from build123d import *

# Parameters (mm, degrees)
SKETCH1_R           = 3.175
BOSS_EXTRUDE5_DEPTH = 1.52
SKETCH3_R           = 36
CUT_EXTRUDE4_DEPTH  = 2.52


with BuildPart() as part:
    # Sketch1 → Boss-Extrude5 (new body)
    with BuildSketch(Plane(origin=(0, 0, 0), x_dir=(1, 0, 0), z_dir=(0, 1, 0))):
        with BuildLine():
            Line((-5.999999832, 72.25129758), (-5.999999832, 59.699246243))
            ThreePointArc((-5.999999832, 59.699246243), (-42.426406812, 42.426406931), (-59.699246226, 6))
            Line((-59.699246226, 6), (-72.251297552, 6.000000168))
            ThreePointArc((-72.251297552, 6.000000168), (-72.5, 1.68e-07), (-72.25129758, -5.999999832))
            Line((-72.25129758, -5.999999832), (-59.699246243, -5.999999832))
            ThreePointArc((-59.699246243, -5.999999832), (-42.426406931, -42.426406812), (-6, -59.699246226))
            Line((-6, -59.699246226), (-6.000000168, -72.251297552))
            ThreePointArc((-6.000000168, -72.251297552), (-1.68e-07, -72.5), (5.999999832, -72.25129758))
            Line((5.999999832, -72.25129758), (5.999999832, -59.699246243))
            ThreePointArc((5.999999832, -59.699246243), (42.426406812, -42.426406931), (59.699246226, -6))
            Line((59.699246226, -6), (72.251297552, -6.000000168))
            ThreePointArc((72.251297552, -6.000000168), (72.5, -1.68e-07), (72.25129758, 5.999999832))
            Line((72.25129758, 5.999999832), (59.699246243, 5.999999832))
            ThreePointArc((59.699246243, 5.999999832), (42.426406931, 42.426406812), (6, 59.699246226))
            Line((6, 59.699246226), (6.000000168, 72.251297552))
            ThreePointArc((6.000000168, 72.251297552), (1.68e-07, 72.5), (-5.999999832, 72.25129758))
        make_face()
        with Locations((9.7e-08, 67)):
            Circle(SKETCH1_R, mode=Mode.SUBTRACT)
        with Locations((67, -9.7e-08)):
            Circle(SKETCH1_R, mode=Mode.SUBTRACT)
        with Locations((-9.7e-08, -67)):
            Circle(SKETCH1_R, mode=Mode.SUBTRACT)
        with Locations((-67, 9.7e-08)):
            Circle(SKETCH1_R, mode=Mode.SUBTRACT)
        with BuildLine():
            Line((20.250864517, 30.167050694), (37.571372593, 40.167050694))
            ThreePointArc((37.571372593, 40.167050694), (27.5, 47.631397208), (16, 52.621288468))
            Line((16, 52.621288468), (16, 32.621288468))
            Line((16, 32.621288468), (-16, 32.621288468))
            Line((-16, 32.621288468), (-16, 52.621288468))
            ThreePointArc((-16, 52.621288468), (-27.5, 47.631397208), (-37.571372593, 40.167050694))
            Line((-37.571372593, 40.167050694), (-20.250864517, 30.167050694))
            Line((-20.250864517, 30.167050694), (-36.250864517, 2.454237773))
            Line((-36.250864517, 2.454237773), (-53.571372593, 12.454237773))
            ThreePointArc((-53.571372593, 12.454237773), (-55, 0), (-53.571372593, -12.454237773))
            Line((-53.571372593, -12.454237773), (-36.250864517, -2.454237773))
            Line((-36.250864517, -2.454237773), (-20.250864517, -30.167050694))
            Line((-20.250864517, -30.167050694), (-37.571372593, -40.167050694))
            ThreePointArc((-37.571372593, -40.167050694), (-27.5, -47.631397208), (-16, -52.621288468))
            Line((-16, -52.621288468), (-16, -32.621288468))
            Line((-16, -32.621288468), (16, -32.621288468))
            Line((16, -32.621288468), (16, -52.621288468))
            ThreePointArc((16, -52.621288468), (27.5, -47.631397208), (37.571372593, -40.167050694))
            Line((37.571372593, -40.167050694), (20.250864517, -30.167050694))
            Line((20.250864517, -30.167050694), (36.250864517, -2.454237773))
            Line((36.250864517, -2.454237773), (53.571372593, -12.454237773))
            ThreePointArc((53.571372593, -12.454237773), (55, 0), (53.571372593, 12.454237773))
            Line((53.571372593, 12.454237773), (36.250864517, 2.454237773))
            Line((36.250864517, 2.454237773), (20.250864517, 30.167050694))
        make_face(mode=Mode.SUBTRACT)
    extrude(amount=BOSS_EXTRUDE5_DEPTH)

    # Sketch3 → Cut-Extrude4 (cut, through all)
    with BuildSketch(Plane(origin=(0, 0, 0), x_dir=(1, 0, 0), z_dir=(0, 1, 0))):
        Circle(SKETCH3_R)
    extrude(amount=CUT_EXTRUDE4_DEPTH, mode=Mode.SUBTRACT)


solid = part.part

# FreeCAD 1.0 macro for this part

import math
import FreeCAD as App
import Part
import Sketcher

V = App.Vector
Q = App.Units.Quantity

doc = App.newDocument("Part")
body = doc.addObject("PartDesign::Body", "Body")

sketch1 = doc.addObject("Sketcher::SketchObject", "Sketch")
body.addObject(sketch1)
sketch1.AttachmentSupport = (doc.XZ_Plane, [""])
sketch1.MapMode = "FlatFace"
sketch1.addGeometry([
    Part.LineSegment(V(-6, -72.3, 0), V(-6, -59.7, 0)),
    Part.ArcOfCircle(Part.Circle(V(0, 0, 0), V(0, 0, 1), 60), math.radians(-174), math.radians(-96)),
    Part.LineSegment(V(-59.7, -6, 0), V(-72.3, -6, 0)),
    Part.ArcOfCircle(Part.Circle(V(0, 0, 0), V(0, 0, 1), 72.5), math.radians(175.25), math.radians(184.75)),
    Part.LineSegment(V(-72.3, 6, 0), V(-59.7, 6, 0)),
    Part.ArcOfCircle(Part.Circle(V(0, 0, 0), V(0, 0, 1), 60), math.radians(96), math.radians(174)),
    Part.LineSegment(V(-6, 59.7, 0), V(-6, 72.3, 0)),
    Part.ArcOfCircle(Part.Circle(V(0, 0, 0), V(0, 0, 1), 72.5), math.radians(85.25), math.radians(94.75)),
    Part.LineSegment(V(6, 72.3, 0), V(6, 59.7, 0)),
    Part.ArcOfCircle(Part.Circle(V(0, 0, 0), V(0, 0, 1), 60), math.radians(6), math.radians(84)),
    Part.LineSegment(V(59.7, 6, 0), V(72.3, 6, 0)),
    Part.ArcOfCircle(Part.Circle(V(0, 0, 0), V(0, 0, 1), 72.5), math.radians(-4.75), math.radians(4.75)),
    Part.LineSegment(V(72.3, -6, 0), V(59.7, -6, 0)),
    Part.ArcOfCircle(Part.Circle(V(0, 0, 0), V(0, 0, 1), 60), math.radians(-84), math.radians(-6)),
    Part.LineSegment(V(6, -59.7, 0), V(6, -72.3, 0)),
    Part.ArcOfCircle(Part.Circle(V(0, 0, 0), V(0, 0, 1), 72.5), math.radians(-94.75), math.radians(-85.25)),
    Part.Circle(V(0, 67, 0), V(0, 0, 1), 3.2),
    Part.Circle(V(67, 0, 0), V(0, 0, 1), 3.2),
    Part.Circle(V(-67, 0, 0), V(0, 0, 1), 3.2),
    Part.LineSegment(V(37.6, -40.2, 0), V(20.3, -30.2, 0)),
    Part.LineSegment(V(20.3, -30.2, 0), V(36.3, -2.5, 0)),
    Part.LineSegment(V(36.3, -2.5, 0), V(53.6, -12.5, 0)),
    Part.ArcOfCircle(Part.Circle(V(0, 0, 0), V(0, 0, 1), 55), math.radians(-13), math.radians(13)),
    Part.LineSegment(V(53.6, 12.5, 0), V(36.3, 2.5, 0)),
    Part.LineSegment(V(36.3, 2.5, 0), V(20.3, 30.2, 0)),
    Part.LineSegment(V(20.3, 30.2, 0), V(37.6, 40.2, 0)),
    Part.ArcOfCircle(Part.Circle(V(0, 0, 0), V(0, 0, 1), 55), math.radians(47), math.radians(73)),
    Part.LineSegment(V(16, 52.6, 0), V(16, 32.6, 0)),
    Part.LineSegment(V(16, 32.6, 0), V(-16, 32.6, 0)),
    Part.LineSegment(V(-16, 32.6, 0), V(-16, 52.6, 0)),
    Part.ArcOfCircle(Part.Circle(V(0, 0, 0), V(0, 0, 1), 55), math.radians(107), math.radians(133)),
    Part.LineSegment(V(-37.6, 40.2, 0), V(-20.3, 30.2, 0)),
    Part.LineSegment(V(-20.3, 30.2, 0), V(-36.3, 2.5, 0)),
    Part.LineSegment(V(-36.3, 2.5, 0), V(-53.6, 12.5, 0)),
    Part.ArcOfCircle(Part.Circle(V(0, 0, 0), V(0, 0, 1), 55), math.radians(167), math.radians(193)),
    Part.LineSegment(V(-53.6, -12.5, 0), V(-36.3, -2.5, 0)),
    Part.LineSegment(V(-36.3, -2.5, 0), V(-20.3, -30.2, 0)),
    Part.LineSegment(V(-20.3, -30.2, 0), V(-37.6, -40.2, 0)),
    Part.ArcOfCircle(Part.Circle(V(0, 0, 0), V(0, 0, 1), 55), math.radians(-133), math.radians(-107)),
    Part.LineSegment(V(-16, -52.6, 0), V(-16, -32.6, 0)),
    Part.LineSegment(V(-16, -32.6, 0), V(16, -32.6, 0)),
    Part.LineSegment(V(16, -32.6, 0), V(16, -52.6, 0)),
    Part.ArcOfCircle(Part.Circle(V(0, 0, 0), V(0, 0, 1), 55), math.radians(-73), math.radians(-47)),
    Part.Circle(V(0, -67, 0), V(0, 0, 1), 3.2),
], False)
sketch1.addConstraint([
    Sketcher.Constraint("Coincident", 0, 2, 1, 2),
    Sketcher.Constraint("Coincident", 1, 1, 2, 1),
    Sketcher.Constraint("Coincident", 2, 2, 3, 2),
    Sketcher.Constraint("Coincident", 3, 1, 4, 1),
    Sketcher.Constraint("Coincident", 4, 2, 5, 2),
    Sketcher.Constraint("Coincident", 5, 1, 6, 1),
    Sketcher.Constraint("Coincident", 6, 2, 7, 2),
    Sketcher.Constraint("Coincident", 7, 1, 8, 1),
    Sketcher.Constraint("Coincident", 8, 2, 9, 2),
    Sketcher.Constraint("Coincident", 9, 1, 10, 1),
    Sketcher.Constraint("Coincident", 10, 2, 11, 2),
    Sketcher.Constraint("Coincident", 11, 1, 12, 1),
    Sketcher.Constraint("Coincident", 12, 2, 13, 2),
    Sketcher.Constraint("Coincident", 13, 1, 14, 1),
    Sketcher.Constraint("Coincident", 14, 2, 15, 2),
    Sketcher.Constraint("Coincident", 15, 1, 0, 1),
    Sketcher.Constraint("Coincident", 19, 2, 20, 1),
    Sketcher.Constraint("Coincident", 20, 2, 21, 1),
    Sketcher.Constraint("Coincident", 21, 2, 22, 1),
    Sketcher.Constraint("Coincident", 22, 2, 23, 1),
    Sketcher.Constraint("Coincident", 23, 2, 24, 1),
    Sketcher.Constraint("Coincident", 24, 2, 25, 1),
    Sketcher.Constraint("Coincident", 25, 2, 26, 1),
    Sketcher.Constraint("Coincident", 26, 2, 27, 1),
    Sketcher.Constraint("Coincident", 27, 2, 28, 1),
    Sketcher.Constraint("Coincident", 28, 2, 29, 1),
    Sketcher.Constraint("Coincident", 29, 2, 30, 1),
    Sketcher.Constraint("Coincident", 30, 2, 31, 1),
    Sketcher.Constraint("Coincident", 31, 2, 32, 1),
    Sketcher.Constraint("Coincident", 32, 2, 33, 1),
    Sketcher.Constraint("Coincident", 33, 2, 34, 1),
    Sketcher.Constraint("Coincident", 34, 2, 35, 1),
    Sketcher.Constraint("Coincident", 35, 2, 36, 1),
    Sketcher.Constraint("Coincident", 36, 2, 37, 1),
    Sketcher.Constraint("Coincident", 37, 2, 38, 1),
    Sketcher.Constraint("Coincident", 38, 2, 39, 1),
    Sketcher.Constraint("Coincident", 39, 2, 40, 1),
    Sketcher.Constraint("Coincident", 40, 2, 41, 1),
    Sketcher.Constraint("Coincident", 41, 2, 42, 1),
    Sketcher.Constraint("Coincident", 42, 2, 19, 1),
    Sketcher.Constraint("Vertical", 0),
    Sketcher.Constraint("Horizontal", 2),
    Sketcher.Constraint("Horizontal", 4),
    Sketcher.Constraint("Vertical", 6),
    Sketcher.Constraint("Vertical", 8),
    Sketcher.Constraint("Horizontal", 10),
    Sketcher.Constraint("Horizontal", 12),
    Sketcher.Constraint("Vertical", 14),
    Sketcher.Constraint("Vertical", 27),
    Sketcher.Constraint("Horizontal", 28),
    Sketcher.Constraint("Vertical", 29),
    Sketcher.Constraint("Vertical", 39),
    Sketcher.Constraint("Horizontal", 40),
    Sketcher.Constraint("Vertical", 41),
    Sketcher.Constraint("Coincident", 1, 3, -1, 1),
    Sketcher.Constraint("Coincident", 3, 3, -1, 1),
    Sketcher.Constraint("Coincident", 5, 3, -1, 1),
    Sketcher.Constraint("Coincident", 7, 3, -1, 1),
    Sketcher.Constraint("Coincident", 9, 3, -1, 1),
    Sketcher.Constraint("Coincident", 11, 3, -1, 1),
    Sketcher.Constraint("Coincident", 13, 3, -1, 1),
    Sketcher.Constraint("Coincident", 15, 3, -1, 1),
    Sketcher.Constraint("Coincident", 22, 3, -1, 1),
    Sketcher.Constraint("Coincident", 26, 3, -1, 1),
    Sketcher.Constraint("Coincident", 30, 3, -1, 1),
    Sketcher.Constraint("Coincident", 34, 3, -1, 1),
    Sketcher.Constraint("Coincident", 38, 3, -1, 1),
    Sketcher.Constraint("Coincident", 42, 3, -1, 1),
    Sketcher.Constraint("Equal", 1, 5),
    Sketcher.Constraint("Equal", 3, 7),
    Sketcher.Constraint("Equal", 5, 9),
    Sketcher.Constraint("Equal", 7, 11),
    Sketcher.Constraint("Equal", 9, 13),
    Sketcher.Constraint("Equal", 11, 15),
    Sketcher.Constraint("Equal", 16, 17),
    Sketcher.Constraint("Equal", 17, 18),
    Sketcher.Constraint("Equal", 22, 26),
    Sketcher.Constraint("Equal", 26, 30),
    Sketcher.Constraint("Equal", 30, 34),
    Sketcher.Constraint("Equal", 34, 38),
    Sketcher.Constraint("Equal", 38, 42),
    Sketcher.Constraint("Equal", 18, 43),
    Sketcher.Constraint("Symmetric", 17, 3, 18, 3, -1, 1),
    Sketcher.Constraint("Symmetric", 16, 3, 43, 3, -1, 1),
    Sketcher.Constraint("Symmetric", 19, 2, 31, 2, -1, 1),
    Sketcher.Constraint("Symmetric", 20, 2, 32, 2, -1, 1),
    Sketcher.Constraint("Symmetric", 23, 2, 35, 2, -1, 1),
    Sketcher.Constraint("Symmetric", 24, 2, 36, 2, -1, 1),
    Sketcher.Constraint("Symmetric", 27, 2, 39, 2, -1, 1),
    Sketcher.Constraint("Symmetric", 24, 2, 31, 2, -2),
    Sketcher.Constraint("Symmetric", 23, 2, 32, 2, -2),
    Sketcher.Constraint("PointOnObject", 16, 3, -2),
    Sketcher.Constraint("PointOnObject", 17, 3, -1),
    Sketcher.Constraint("Perpendicular", 19, 20),
    Sketcher.Constraint("Perpendicular", 20, 21),
    Sketcher.Constraint("Perpendicular", 23, 24),
    Sketcher.Constraint("Perpendicular", 24, 25),
    Sketcher.Constraint("Parallel", 21, 31),
    Sketcher.Constraint("Perpendicular", 32, 33),
    Sketcher.Constraint("Parallel", 25, 35),
    Sketcher.Constraint("Perpendicular", 36, 37),
    Sketcher.Constraint("Horizontal", 6, 2, 7, 1),
    Sketcher.Constraint("Horizontal", 4, 2, 9, 1),
    Sketcher.Constraint("Horizontal", 2, 2, 11, 1),
    Sketcher.Constraint("Horizontal", 0, 2, 13, 1),
    Sketcher.Constraint("Horizontal", 26, 2, 29, 2),
    Sketcher.Constraint("Horizontal", 38, 2, 41, 2),
    Sketcher.Constraint("Vertical", 2, 2, 3, 1),
    Sketcher.Constraint("Vertical", 0, 2, 5, 1),
    Sketcher.Constraint("Equal", 12, 0),
    Sketcher.Constraint("Equal", 19, 21),
    Sketcher.Constraint("Radius", 1, 60.0),
    Sketcher.Constraint("Radius", 22, 55.0),
    Sketcher.Constraint("Radius", 3, 72.5),
    Sketcher.Constraint("Diameter", 16, 6.35),
    Sketcher.Constraint("DistanceX", 28, 2, 28, 1, 32.0),
    Sketcher.Constraint("DistanceY", 27, 2, 27, 1, 20.0),
    Sketcher.Constraint("Angle", 19, Q("150 deg")),
    Sketcher.Constraint("Distance", 19, 20.0),
    Sketcher.Constraint("Distance", 20, 32.0),
    Sketcher.Constraint("DistanceY", -1, 1, 16, 3, 67.0),
    Sketcher.Constraint("DistanceX", -1, 1, 17, 3, 67.0),
    Sketcher.Constraint("DistanceX", 0, 2, -1, 1, 6.0),
])
pad1 = doc.addObject("PartDesign::Pad", "Pad")
body.addObject(pad1)
pad1.Profile = sketch1
pad1.Length = 1.52
pad1.Reversed = True

sketch2 = doc.addObject("Sketcher::SketchObject", "Sketch001")
body.addObject(sketch2)
sketch2.AttachmentSupport = (doc.XZ_Plane, [""])
sketch2.MapMode = "FlatFace"
sketch2.addGeometry(Part.Circle(V(0, 0, 0), V(0, 0, 1), 36), False)
sketch2.addConstraint([
    Sketcher.Constraint("Coincident", 0, 3, -1, 1),
    Sketcher.Constraint("Diameter", 0, 72.0),
])
pocket1 = doc.addObject("PartDesign::Pocket", "Pocket")
body.addObject(pocket1)
pocket1.Profile = sketch2
pocket1.Type = "ThroughAll"

doc.recompute()
